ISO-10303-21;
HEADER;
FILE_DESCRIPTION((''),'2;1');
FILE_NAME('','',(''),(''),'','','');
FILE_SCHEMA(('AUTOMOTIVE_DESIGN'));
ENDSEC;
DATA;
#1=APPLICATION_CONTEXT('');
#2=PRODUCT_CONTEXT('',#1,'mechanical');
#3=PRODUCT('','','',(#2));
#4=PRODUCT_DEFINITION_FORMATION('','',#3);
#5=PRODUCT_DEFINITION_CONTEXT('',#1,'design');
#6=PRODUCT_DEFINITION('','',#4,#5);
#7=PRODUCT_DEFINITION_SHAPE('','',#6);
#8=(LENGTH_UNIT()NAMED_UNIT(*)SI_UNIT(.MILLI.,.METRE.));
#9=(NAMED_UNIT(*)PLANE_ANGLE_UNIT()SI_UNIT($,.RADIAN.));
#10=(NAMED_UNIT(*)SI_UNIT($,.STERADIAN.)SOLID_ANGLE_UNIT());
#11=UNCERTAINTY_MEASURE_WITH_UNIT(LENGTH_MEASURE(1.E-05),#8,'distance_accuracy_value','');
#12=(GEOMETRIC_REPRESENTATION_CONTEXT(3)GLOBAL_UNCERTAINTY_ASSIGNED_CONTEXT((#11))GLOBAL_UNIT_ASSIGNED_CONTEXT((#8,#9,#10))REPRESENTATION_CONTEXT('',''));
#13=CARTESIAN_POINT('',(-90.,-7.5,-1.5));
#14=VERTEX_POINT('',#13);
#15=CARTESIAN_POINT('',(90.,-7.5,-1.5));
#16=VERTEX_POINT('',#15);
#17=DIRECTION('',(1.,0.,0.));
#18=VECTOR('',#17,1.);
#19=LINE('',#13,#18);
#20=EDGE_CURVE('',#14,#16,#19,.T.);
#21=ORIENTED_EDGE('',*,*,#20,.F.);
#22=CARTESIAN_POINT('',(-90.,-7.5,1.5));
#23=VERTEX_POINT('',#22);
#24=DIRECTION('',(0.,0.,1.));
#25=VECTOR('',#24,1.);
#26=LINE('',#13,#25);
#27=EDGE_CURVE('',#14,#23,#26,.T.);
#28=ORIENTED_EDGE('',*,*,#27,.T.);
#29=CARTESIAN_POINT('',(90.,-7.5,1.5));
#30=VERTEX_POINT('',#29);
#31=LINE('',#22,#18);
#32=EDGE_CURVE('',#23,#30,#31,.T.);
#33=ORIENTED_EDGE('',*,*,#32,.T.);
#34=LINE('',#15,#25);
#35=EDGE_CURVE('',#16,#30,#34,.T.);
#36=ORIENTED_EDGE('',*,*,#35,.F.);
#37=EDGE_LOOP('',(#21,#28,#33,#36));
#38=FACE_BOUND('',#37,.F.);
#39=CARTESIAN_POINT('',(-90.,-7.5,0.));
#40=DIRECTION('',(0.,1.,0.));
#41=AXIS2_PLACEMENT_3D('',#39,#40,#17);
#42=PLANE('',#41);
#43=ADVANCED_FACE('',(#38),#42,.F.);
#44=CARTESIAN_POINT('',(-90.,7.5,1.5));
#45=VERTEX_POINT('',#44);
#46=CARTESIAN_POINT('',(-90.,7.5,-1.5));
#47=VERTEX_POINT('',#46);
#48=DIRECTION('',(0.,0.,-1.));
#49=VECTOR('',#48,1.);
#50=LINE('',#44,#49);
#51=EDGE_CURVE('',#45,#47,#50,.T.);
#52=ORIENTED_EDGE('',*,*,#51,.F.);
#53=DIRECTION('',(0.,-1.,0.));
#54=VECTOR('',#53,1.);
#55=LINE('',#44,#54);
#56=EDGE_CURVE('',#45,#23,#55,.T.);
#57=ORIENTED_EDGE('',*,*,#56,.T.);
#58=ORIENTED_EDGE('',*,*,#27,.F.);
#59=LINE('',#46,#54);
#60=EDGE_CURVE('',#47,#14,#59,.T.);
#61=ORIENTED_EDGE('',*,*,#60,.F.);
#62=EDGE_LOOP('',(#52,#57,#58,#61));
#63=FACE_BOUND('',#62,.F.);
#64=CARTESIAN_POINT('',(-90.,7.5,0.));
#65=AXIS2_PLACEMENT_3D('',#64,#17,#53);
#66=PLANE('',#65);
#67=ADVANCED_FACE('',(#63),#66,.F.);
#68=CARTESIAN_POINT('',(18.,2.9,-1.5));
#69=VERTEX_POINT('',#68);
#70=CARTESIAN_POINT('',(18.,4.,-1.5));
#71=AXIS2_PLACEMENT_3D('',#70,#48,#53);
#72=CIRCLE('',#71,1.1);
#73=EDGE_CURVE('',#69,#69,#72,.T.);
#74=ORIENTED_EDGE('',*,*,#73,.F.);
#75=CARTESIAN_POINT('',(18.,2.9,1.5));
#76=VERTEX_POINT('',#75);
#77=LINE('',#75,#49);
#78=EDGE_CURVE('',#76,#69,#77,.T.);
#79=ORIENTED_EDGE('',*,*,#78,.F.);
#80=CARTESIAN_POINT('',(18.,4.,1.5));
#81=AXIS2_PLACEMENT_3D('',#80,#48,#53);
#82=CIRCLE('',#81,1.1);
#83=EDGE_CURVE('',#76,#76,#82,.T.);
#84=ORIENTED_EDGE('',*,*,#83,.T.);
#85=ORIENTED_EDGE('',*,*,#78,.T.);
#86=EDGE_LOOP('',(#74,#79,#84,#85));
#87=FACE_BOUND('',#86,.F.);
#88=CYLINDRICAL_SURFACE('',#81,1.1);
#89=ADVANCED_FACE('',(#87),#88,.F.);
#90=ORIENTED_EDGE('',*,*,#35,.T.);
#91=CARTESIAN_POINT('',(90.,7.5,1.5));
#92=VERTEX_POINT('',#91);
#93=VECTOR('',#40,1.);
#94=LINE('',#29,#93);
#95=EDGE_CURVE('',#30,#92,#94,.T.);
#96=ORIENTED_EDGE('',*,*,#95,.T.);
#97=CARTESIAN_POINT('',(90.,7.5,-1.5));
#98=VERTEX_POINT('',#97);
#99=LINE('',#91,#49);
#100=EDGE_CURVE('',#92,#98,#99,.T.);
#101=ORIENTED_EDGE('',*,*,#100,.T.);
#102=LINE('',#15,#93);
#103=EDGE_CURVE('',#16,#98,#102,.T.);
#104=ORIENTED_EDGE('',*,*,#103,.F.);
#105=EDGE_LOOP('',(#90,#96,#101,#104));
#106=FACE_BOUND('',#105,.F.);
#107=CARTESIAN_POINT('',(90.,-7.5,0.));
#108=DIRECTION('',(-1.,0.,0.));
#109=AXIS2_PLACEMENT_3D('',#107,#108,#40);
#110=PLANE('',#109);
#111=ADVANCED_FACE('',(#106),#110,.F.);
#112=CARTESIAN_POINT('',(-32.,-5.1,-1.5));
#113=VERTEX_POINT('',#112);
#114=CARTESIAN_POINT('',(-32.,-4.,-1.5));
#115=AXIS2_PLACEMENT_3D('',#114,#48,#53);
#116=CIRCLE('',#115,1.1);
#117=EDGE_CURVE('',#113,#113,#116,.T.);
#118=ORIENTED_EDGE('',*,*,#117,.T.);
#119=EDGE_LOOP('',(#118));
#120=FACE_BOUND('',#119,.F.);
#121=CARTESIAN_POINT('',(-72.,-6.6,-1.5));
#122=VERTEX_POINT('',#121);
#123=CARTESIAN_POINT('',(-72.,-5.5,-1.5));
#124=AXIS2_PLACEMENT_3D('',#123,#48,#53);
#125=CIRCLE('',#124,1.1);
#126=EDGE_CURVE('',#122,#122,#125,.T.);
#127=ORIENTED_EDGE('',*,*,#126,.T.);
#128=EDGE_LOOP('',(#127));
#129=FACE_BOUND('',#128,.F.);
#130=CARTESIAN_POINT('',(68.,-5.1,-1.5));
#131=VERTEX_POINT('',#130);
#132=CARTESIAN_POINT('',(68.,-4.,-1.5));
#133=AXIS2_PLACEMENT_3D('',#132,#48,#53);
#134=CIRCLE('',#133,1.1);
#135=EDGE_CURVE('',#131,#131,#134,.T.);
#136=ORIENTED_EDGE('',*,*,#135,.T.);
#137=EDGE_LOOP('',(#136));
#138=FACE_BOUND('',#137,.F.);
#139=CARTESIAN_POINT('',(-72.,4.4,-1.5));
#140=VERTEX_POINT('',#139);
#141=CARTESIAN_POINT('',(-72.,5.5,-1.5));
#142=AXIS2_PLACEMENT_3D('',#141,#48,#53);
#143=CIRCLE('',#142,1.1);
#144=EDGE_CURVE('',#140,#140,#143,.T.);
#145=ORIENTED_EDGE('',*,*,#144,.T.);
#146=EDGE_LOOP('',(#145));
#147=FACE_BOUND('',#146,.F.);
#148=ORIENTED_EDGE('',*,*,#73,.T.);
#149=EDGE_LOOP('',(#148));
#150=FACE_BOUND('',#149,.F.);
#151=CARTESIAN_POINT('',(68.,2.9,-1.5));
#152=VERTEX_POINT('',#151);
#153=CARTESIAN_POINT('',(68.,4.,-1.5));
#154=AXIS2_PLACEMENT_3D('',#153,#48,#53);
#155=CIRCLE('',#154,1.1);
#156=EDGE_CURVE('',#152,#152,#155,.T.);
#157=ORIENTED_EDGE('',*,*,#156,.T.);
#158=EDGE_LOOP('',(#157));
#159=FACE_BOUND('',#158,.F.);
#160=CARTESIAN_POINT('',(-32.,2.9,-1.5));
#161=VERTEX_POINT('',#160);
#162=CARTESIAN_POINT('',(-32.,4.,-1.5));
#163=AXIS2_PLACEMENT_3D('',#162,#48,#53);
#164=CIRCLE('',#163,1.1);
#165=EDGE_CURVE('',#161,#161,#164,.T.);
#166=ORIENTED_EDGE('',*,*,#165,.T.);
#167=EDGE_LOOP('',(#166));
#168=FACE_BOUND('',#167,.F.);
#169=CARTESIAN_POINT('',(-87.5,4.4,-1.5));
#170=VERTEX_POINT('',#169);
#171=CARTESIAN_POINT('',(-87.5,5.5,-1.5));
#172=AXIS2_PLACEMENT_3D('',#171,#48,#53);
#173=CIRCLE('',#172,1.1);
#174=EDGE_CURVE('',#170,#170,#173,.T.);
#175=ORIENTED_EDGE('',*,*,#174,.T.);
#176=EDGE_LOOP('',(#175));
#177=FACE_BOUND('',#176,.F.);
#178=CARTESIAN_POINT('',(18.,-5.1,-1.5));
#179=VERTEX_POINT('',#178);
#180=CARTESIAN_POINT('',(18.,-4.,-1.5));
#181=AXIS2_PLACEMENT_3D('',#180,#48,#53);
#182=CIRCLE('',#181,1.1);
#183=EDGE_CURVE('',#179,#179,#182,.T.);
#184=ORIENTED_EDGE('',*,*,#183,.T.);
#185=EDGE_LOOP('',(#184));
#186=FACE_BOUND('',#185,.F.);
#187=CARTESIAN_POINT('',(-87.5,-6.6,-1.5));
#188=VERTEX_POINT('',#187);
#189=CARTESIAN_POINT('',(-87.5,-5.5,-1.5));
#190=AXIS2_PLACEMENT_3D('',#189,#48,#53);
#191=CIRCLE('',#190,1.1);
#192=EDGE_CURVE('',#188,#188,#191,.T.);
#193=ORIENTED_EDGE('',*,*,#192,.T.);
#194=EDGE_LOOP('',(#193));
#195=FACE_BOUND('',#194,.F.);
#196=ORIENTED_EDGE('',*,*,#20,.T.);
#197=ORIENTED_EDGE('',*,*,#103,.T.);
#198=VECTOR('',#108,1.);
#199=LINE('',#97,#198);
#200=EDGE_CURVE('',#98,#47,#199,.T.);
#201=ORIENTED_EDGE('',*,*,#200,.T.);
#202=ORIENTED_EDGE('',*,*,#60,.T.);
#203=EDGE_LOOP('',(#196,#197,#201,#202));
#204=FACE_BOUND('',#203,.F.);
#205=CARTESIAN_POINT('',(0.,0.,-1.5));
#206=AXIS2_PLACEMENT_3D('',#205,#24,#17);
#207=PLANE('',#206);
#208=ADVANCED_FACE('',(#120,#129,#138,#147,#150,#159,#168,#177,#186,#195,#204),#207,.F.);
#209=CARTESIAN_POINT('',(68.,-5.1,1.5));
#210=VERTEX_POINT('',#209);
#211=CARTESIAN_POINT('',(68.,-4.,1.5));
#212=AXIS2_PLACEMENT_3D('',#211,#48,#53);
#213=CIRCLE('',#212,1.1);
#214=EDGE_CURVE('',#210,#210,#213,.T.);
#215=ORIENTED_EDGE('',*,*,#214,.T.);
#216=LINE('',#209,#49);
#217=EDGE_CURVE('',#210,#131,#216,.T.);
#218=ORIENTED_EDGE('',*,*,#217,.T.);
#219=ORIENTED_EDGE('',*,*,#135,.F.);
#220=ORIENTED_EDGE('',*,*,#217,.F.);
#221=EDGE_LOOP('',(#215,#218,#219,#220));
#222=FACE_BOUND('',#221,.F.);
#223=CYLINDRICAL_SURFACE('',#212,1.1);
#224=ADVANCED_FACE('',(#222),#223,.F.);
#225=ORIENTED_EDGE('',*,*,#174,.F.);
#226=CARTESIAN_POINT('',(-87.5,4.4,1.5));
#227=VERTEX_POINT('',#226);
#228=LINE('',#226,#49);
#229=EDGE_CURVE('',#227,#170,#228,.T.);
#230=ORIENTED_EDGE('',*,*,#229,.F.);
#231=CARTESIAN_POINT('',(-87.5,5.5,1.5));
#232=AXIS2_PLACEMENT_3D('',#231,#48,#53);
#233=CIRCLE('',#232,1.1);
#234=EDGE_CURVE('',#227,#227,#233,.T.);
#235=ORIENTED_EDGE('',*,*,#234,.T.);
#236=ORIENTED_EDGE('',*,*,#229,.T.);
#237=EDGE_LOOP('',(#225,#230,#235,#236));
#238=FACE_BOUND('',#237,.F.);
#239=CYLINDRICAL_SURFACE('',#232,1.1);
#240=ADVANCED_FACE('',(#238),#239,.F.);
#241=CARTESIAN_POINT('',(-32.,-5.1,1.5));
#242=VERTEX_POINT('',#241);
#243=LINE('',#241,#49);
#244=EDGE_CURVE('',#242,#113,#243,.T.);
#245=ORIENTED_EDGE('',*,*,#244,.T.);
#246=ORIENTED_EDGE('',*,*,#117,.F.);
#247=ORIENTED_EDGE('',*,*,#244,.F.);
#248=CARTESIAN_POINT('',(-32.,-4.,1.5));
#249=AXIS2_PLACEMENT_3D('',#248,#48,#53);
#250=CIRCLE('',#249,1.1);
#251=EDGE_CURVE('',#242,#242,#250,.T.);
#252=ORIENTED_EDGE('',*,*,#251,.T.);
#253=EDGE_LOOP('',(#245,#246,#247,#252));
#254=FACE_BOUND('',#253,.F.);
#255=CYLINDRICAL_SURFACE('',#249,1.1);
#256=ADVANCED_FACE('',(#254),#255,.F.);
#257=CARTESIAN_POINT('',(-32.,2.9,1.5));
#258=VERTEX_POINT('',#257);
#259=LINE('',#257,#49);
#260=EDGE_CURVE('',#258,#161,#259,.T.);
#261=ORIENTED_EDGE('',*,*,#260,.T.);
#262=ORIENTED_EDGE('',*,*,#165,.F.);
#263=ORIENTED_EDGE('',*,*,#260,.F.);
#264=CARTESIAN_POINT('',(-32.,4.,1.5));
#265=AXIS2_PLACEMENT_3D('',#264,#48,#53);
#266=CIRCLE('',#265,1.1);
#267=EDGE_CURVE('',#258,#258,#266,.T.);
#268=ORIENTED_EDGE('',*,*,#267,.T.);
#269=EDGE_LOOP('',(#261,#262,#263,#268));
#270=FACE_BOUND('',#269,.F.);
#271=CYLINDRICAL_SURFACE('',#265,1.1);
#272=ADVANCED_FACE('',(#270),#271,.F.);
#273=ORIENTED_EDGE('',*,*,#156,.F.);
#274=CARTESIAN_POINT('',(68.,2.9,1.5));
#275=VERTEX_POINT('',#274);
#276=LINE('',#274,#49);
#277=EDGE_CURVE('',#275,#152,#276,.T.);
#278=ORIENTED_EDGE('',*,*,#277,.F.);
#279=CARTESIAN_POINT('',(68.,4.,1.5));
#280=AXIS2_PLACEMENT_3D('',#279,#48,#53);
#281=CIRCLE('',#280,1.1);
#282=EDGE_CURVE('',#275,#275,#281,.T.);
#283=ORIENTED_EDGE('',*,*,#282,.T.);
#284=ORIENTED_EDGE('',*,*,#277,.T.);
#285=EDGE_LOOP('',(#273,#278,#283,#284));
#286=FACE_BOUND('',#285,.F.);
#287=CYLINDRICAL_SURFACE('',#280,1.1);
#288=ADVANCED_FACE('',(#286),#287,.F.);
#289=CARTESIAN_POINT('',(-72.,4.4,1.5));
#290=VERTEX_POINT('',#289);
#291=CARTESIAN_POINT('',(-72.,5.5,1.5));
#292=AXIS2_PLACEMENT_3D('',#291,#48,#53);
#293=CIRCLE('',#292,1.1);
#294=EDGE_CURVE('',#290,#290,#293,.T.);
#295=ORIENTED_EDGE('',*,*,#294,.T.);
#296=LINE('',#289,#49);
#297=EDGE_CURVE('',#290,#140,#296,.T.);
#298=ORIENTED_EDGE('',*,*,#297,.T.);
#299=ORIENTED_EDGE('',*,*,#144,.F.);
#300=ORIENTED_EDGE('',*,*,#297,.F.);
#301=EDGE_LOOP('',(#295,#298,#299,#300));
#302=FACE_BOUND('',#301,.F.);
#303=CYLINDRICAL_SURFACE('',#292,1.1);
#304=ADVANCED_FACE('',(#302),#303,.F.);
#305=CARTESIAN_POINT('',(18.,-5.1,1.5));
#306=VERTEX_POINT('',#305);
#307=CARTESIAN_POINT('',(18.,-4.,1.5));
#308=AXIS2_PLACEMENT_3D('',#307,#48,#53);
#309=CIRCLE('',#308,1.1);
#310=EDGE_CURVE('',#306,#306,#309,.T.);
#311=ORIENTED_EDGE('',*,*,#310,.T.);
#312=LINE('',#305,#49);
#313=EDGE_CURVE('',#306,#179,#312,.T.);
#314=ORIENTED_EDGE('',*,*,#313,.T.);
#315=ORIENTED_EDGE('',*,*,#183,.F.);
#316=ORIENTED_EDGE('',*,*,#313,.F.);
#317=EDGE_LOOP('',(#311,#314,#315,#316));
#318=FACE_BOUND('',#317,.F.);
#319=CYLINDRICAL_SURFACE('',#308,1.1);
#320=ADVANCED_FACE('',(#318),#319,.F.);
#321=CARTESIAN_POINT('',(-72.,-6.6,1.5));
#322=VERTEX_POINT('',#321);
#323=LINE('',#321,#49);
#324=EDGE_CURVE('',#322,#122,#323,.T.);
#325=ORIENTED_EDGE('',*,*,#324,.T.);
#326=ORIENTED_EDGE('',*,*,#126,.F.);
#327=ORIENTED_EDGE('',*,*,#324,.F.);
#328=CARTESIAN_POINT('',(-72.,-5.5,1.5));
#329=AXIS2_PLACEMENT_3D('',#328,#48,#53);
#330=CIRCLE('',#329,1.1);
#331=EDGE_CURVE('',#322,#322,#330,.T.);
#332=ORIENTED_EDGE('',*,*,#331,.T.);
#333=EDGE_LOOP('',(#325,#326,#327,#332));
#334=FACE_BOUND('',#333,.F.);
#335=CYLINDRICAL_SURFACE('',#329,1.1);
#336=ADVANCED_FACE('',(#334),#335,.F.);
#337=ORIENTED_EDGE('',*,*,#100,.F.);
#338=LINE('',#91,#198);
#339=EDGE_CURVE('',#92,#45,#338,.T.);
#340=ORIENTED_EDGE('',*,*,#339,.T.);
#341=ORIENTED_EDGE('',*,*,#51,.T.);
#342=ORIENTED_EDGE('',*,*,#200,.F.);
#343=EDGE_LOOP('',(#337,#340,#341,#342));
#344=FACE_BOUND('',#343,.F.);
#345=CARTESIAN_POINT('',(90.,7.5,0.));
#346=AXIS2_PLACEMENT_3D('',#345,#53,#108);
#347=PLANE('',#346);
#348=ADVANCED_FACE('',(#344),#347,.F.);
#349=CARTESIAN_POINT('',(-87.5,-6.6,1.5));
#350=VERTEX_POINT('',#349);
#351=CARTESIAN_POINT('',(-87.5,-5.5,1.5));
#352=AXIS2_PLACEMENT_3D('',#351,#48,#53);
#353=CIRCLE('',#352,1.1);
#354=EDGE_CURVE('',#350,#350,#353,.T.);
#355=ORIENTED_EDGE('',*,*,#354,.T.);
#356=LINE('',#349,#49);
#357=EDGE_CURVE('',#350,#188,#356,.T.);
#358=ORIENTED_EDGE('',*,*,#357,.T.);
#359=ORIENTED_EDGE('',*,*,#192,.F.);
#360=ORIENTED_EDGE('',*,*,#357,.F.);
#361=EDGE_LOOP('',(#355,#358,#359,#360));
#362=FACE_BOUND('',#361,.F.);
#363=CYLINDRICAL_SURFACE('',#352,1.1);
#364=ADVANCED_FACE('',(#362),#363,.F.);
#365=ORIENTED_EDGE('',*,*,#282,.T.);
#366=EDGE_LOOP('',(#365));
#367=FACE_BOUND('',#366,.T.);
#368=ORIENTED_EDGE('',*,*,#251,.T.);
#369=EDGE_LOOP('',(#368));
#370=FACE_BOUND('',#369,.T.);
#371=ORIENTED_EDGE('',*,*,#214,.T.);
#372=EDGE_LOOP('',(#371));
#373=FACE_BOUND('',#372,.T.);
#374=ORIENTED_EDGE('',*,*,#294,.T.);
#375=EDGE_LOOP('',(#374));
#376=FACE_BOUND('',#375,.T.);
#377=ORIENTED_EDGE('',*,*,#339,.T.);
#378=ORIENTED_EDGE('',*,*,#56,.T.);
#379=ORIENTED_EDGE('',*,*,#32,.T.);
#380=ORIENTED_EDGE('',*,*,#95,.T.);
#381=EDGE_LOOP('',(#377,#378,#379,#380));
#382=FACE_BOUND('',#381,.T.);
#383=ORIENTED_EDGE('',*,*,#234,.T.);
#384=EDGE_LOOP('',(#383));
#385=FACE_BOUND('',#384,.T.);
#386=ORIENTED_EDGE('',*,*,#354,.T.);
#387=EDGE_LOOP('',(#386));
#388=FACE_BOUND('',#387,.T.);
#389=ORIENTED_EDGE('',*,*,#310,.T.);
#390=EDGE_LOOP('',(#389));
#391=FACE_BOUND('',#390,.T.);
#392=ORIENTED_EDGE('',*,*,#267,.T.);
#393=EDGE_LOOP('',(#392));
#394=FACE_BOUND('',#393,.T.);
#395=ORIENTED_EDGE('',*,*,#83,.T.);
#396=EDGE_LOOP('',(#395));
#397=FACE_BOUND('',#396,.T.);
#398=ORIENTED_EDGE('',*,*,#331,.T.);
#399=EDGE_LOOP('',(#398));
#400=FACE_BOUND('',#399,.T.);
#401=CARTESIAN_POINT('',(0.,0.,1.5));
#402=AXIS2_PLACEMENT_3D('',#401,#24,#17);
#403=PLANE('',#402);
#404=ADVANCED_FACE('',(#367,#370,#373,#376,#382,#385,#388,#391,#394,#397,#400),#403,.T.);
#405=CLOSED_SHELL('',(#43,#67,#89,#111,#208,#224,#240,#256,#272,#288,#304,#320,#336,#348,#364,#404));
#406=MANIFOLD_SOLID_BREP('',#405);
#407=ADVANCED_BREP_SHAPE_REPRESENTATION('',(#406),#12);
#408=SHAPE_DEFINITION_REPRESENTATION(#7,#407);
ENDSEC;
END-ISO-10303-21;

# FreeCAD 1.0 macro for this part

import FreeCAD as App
import Part
import Sketcher
Q = App.Units.Quantity

doc = App.newDocument("Part")
body = doc.addObject("PartDesign::Body", "Body")

# Sketch on XY plane
sketch1 = body.newObject("Sketcher::SketchObject", "Sketch")
sketch1.AttachmentSupport = (doc.getObject("XY_Plane"), [""])
sketch1.MapMode = "FlatFace"
sketch1.addGeometry(Part.LineSegment(App.Vector(-90, 8, 0), App.Vector(-90, -8, 0)), False)
sketch1.addGeometry(Part.LineSegment(App.Vector(-90, -8, 0), App.Vector(90, -8, 0)), False)
sketch1.addGeometry(Part.LineSegment(App.Vector(90, -8, 0), App.Vector(90, 8, 0)), False)
sketch1.addGeometry(Part.LineSegment(App.Vector(90, 8, 0), App.Vector(-90, 8, 0)), False)
sketch1.addConstraint(Sketcher.Constraint("Coincident", 0, 2, 1, 1))
sketch1.addConstraint(Sketcher.Constraint("Coincident", 1, 2, 2, 1))
sketch1.addConstraint(Sketcher.Constraint("Coincident", 2, 2, 3, 1))
sketch1.addConstraint(Sketcher.Constraint("Coincident", 3, 2, 0, 1))
sketch1.addConstraint(Sketcher.Constraint("Vertical", 0))
sketch1.addConstraint(Sketcher.Constraint("Horizontal", 1))
sketch1.addConstraint(Sketcher.Constraint("Vertical", 2))
sketch1.addConstraint(Sketcher.Constraint("Horizontal", 3))
sketch1.addConstraint(Sketcher.Constraint("Symmetric", 0, 2, 2, 2, -1, 1))
sketch1.addConstraint(Sketcher.Constraint("DistanceX", 1, 1, 1, 2, Q("180 mm")))
sketch1.addConstraint(Sketcher.Constraint("DistanceY", 0, 2, 0, 1, Q("15 mm")))
pad1 = body.newObject("PartDesign::Pad", "Pad")
pad1.Profile = sketch1
pad1.Length = 3
pad1.Midplane = True

# Sketch on XY plane
sketch2 = body.newObject("Sketcher::SketchObject", "Sketch001")
sketch2.AttachmentSupport = (doc.getObject("XY_Plane"), [""])
sketch2.MapMode = "FlatFace"
sketch2.AttachmentOffset = App.Placement(App.Vector(0, 0, 1.5), App.Rotation())
sketch2.addGeometry(Part.Circle(App.Vector(-87.5, 5.5, 0), App.Vector(0, 0, 1), 1.1), False)
sketch2.addGeometry(Part.Circle(App.Vector(-72, 5.5, 0), App.Vector(0, 0, 1), 1.1), False)
sketch2.addGeometry(Part.Circle(App.Vector(-87.5, -5.5, 0), App.Vector(0, 0, 1), 1.1), False)
sketch2.addGeometry(Part.Circle(App.Vector(-72, -5.5, 0), App.Vector(0, 0, 1), 1.1), False)
sketch2.addConstraint(Sketcher.Constraint("Equal", 0, 1))
sketch2.addConstraint(Sketcher.Constraint("Equal", 1, 2))
sketch2.addConstraint(Sketcher.Constraint("Equal", 2, 3))
sketch2.addConstraint(Sketcher.Constraint("Symmetric", 0, 3, 2, 3, -1))
sketch2.addConstraint(Sketcher.Constraint("Symmetric", 1, 3, 3, 3, -1))
sketch2.addConstraint(Sketcher.Constraint("Horizontal", 0, 3, 1, 3))
sketch2.addConstraint(Sketcher.Constraint("Diameter", 0, Q("2.2 mm")))
sketch2.addConstraint(Sketcher.Constraint("DistanceX", 1, 3, -1, 1, Q("72 mm")))
sketch2.addConstraint(Sketcher.Constraint("DistanceY", 2, 3, 0, 3, Q("11 mm")))
sketch2.addConstraint(Sketcher.Constraint("DistanceX", 0, 3, -1, 1, Q("87.5 mm")))
doc.recompute()
hole = body.newObject("PartDesign::Hole", "Hole")
hole.Profile = sketch2
hole.ThreadType = "None"
hole.Diameter = 2.2
hole.DepthType = "ThroughAll"

# Sketch on XY plane
sketch3 = body.newObject("Sketcher::SketchObject", "Sketch002")
sketch3.AttachmentSupport = (doc.getObject("XY_Plane"), [""])
sketch3.MapMode = "FlatFace"
sketch3.AttachmentOffset = App.Placement(App.Vector(0, 0, 1.5), App.Rotation())
sketch3.addGeometry(Part.Circle(App.Vector(-32, 4, 0), App.Vector(0, 0, 1), 1.1), False)
sketch3.addGeometry(Part.Circle(App.Vector(-32, -4, 0), App.Vector(0, 0, 1), 1.1), False)
sketch3.addGeometry(Part.Circle(App.Vector(18, 4, 0), App.Vector(0, 0, 1), 1.1), False)
sketch3.addGeometry(Part.Circle(App.Vector(18, -4, 0), App.Vector(0, 0, 1), 1.1), False)
sketch3.addGeometry(Part.Circle(App.Vector(68, 4, 0), App.Vector(0, 0, 1), 1.1), False)
sketch3.addGeometry(Part.Circle(App.Vector(68, -4, 0), App.Vector(0, 0, 1), 1.1), False)
sketch3.addConstraint(Sketcher.Constraint("Equal", 0, 1))
sketch3.addConstraint(Sketcher.Constraint("Equal", 1, 2))
sketch3.addConstraint(Sketcher.Constraint("Equal", 2, 3))
sketch3.addConstraint(Sketcher.Constraint("Equal", 3, 4))
sketch3.addConstraint(Sketcher.Constraint("Equal", 4, 5))
sketch3.addConstraint(Sketcher.Constraint("Symmetric", 0, 3, 1, 3, -1))
sketch3.addConstraint(Sketcher.Constraint("Symmetric", 2, 3, 3, 3, -1))
sketch3.addConstraint(Sketcher.Constraint("Symmetric", 4, 3, 5, 3, -1))
sketch3.addConstraint(Sketcher.Constraint("Horizontal", 0, 3, 2, 3))
sketch3.addConstraint(Sketcher.Constraint("Horizontal", 2, 3, 4, 3))
sketch3.addConstraint(Sketcher.Constraint("Diameter", 0, Q("2.2 mm")))
sketch3.addConstraint(Sketcher.Constraint("DistanceX", 0, 3, -1, 1, Q("32 mm")))
sketch3.addConstraint(Sketcher.Constraint("DistanceY", -1, 1, 0, 3, Q("4 mm")))
sketch3.addConstraint(Sketcher.Constraint("DistanceX", -1, 1, 2, 3, Q("18 mm")))
sketch3.addConstraint(Sketcher.Constraint("DistanceX", -1, 1, 4, 3, Q("68 mm")))
doc.recompute()
hole2 = body.newObject("PartDesign::Hole", "Hole001")
hole2.Profile = sketch3
hole2.ThreadType = "None"
hole2.Diameter = 2.2
hole2.DepthType = "ThroughAll"

doc.recompute()
